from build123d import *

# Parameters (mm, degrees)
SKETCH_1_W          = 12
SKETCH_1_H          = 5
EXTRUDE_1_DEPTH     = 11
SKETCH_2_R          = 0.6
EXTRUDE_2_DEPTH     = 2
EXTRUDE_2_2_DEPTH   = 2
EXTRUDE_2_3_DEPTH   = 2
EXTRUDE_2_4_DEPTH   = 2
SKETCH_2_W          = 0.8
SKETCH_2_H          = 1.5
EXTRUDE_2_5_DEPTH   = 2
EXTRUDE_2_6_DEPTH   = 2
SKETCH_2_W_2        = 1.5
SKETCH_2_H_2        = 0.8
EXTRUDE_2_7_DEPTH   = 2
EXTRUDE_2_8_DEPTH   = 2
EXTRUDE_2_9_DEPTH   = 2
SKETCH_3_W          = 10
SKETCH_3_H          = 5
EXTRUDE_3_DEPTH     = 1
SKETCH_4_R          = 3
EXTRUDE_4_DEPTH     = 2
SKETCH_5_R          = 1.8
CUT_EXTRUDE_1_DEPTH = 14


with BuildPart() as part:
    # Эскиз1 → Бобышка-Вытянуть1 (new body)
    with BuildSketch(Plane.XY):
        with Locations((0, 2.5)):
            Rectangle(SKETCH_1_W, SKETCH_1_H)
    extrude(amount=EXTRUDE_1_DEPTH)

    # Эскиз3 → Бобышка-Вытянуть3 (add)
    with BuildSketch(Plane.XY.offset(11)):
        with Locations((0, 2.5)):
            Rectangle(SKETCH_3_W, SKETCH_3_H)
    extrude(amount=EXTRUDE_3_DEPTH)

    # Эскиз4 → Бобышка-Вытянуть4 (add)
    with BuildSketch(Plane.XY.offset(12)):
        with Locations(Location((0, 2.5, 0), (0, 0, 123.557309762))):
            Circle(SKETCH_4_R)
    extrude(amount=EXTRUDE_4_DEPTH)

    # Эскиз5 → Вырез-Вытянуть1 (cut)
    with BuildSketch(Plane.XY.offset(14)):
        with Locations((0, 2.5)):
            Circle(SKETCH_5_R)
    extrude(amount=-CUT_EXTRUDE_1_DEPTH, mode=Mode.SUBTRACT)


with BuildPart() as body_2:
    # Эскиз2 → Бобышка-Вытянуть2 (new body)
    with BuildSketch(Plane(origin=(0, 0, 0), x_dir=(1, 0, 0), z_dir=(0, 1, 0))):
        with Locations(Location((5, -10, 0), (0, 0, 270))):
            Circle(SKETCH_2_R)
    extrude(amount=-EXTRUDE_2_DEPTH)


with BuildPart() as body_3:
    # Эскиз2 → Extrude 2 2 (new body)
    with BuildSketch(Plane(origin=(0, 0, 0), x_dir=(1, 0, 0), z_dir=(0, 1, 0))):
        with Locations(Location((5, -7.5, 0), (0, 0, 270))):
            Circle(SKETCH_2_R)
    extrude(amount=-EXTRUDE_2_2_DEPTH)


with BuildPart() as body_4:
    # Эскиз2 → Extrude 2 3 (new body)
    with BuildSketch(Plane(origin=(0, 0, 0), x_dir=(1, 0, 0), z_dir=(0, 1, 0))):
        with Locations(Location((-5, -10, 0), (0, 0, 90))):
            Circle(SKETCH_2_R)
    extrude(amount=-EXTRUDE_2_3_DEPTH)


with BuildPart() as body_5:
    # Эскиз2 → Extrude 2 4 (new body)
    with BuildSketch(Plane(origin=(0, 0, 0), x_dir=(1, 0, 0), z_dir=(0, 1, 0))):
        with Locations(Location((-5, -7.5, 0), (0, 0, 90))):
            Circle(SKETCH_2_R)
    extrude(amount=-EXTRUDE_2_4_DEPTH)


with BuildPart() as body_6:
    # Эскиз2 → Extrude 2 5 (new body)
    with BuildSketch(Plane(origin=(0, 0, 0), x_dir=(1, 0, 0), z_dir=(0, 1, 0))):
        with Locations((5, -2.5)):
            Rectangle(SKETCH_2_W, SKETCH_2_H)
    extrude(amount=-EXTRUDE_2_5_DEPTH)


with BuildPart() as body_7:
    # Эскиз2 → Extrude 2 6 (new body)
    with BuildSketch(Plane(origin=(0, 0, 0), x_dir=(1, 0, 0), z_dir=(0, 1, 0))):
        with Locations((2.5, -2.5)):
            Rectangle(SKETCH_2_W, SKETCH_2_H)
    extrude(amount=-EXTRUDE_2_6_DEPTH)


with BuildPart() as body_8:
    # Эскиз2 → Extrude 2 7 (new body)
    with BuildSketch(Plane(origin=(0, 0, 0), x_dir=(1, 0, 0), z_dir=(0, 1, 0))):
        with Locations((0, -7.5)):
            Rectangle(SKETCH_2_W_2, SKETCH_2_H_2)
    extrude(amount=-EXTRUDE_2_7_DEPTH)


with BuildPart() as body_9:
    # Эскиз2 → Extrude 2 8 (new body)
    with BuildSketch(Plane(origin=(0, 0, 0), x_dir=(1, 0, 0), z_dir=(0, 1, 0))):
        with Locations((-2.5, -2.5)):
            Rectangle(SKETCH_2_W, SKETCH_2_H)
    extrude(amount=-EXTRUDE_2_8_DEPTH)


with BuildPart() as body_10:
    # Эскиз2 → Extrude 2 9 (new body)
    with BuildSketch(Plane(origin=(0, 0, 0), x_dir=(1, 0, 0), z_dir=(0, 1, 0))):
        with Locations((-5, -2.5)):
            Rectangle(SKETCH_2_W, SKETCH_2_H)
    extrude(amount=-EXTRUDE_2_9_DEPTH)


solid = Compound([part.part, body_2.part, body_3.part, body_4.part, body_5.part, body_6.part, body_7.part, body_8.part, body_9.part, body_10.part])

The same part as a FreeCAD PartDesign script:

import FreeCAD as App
import Part
import Sketcher

doc = App.newDocument("Part")
params = doc.addObject("Spreadsheet::Sheet", "Params")
for row, (alias, value) in enumerate([
    ("sketch1_width", "12 mm"),
    ("sketch1_height", "5 mm"),
    ("pad1_length", "11 mm"),
    ("sketch2_width", "10 mm"),
    ("sketch2_height", "5 mm"),
    ("pad2_length", "1 mm"),
    ("sketch3_diameter", "6 mm"),
    ("pad3_length", "2 mm"),
    ("sketch4_diameter", "3.6 mm"),
    ("pocket1_length", "14 mm"),
    ("sketch5_diameter", "1.2 mm"),
    ("pad4_length", "2 mm"),
    ("sketch6_diameter", "1.2 mm"),
    ("pad5_length", "2 mm"),
    ("sketch7_diameter", "1.2 mm"),
    ("pad6_length", "2 mm"),
    ("sketch8_diameter", "1.2 mm"),
    ("pad7_length", "2 mm"),
    ("sketch9_width", "0.8 mm"),
    ("sketch9_height", "1.5 mm"),
    ("pad8_length", "2 mm"),
    ("sketch10_width", "0.8 mm"),
    ("sketch10_height", "1.5 mm"),
    ("pad9_length", "2 mm"),
    ("sketch11_width", "1.5 mm"),
    ("sketch11_height", "0.8 mm"),
    ("pad10_length", "2 mm"),
    ("sketch12_width", "0.8 mm"),
    ("sketch12_height", "1.5 mm"),
    ("pad11_length", "2 mm"),
    ("sketch13_width", "0.8 mm"),
    ("sketch13_height", "1.5 mm"),
    ("pad12_length", "2 mm"),
], start=1):
    params.set(f"A{row}", alias)
    params.set(f"B{row}", "=" + value)
    params.setAlias(f"B{row}", alias)

body = doc.addObject("PartDesign::Body", "Body")

# Sketch on XY plane
sketch1 = doc.addObject("Sketcher::SketchObject", "Sketch")
body.addObject(sketch1)
sketch1.AttachmentSupport = (doc.XY_Plane, [""])
sketch1.MapMode = "FlatFace"
sketch1.addGeometry([
    Part.LineSegment(App.Vector(-6, 5, 0), App.Vector(-6, 0, 0)),
    Part.LineSegment(App.Vector(-6, 0, 0), App.Vector(6, 0, 0)),
    Part.LineSegment(App.Vector(6, 0, 0), App.Vector(6, 5, 0)),
    Part.LineSegment(App.Vector(6, 5, 0), App.Vector(-6, 5, 0)),
], False)
sketch1.addConstraint([
    Sketcher.Constraint("Coincident", 0, 2, 1, 1),
    Sketcher.Constraint("Coincident", 1, 2, 2, 1),
    Sketcher.Constraint("Coincident", 2, 2, 3, 1),
    Sketcher.Constraint("Coincident", 3, 2, 0, 1),
    Sketcher.Constraint("Vertical", 0),
    Sketcher.Constraint("Horizontal", 1),
    Sketcher.Constraint("Vertical", 2),
    Sketcher.Constraint("Horizontal", 3),
    Sketcher.Constraint("Symmetric", 0, 2, 1, 2, -1, 1),
    Sketcher.Constraint("DistanceX", 1, 1, 1, 2, 12.0),
    Sketcher.Constraint("DistanceY", 0, 2, 0, 1, 5.0),
])
sketch1.setExpression("Constraints[9]", "Params.sketch1_width")
sketch1.setExpression("Constraints[10]", "Params.sketch1_height")
pad1 = doc.addObject("PartDesign::Pad", "Pad")
body.addObject(pad1)
pad1.Profile = sketch1
pad1.setExpression("Length", "Params.pad1_length")

# Sketch on XY plane
sketch2 = doc.addObject("Sketcher::SketchObject", "Sketch001")
body.addObject(sketch2)
sketch2.AttachmentSupport = (doc.XY_Plane, [""])
sketch2.MapMode = "FlatFace"
sketch2.AttachmentOffset = App.Placement(App.Vector(0, 0, 11), App.Rotation())
sketch2.addGeometry([
    Part.LineSegment(App.Vector(-5, 5, 0), App.Vector(-5, 0, 0)),
    Part.LineSegment(App.Vector(-5, 0, 0), App.Vector(5, 0, 0)),
    Part.LineSegment(App.Vector(5, 0, 0), App.Vector(5, 5, 0)),
    Part.LineSegment(App.Vector(5, 5, 0), App.Vector(-5, 5, 0)),
], False)
sketch2.addConstraint([
    Sketcher.Constraint("Coincident", 0, 2, 1, 1),
    Sketcher.Constraint("Coincident", 1, 2, 2, 1),
    Sketcher.Constraint("Coincident", 2, 2, 3, 1),
    Sketcher.Constraint("Coincident", 3, 2, 0, 1),
    Sketcher.Constraint("Vertical", 0),
    Sketcher.Constraint("Horizontal", 1),
    Sketcher.Constraint("Vertical", 2),
    Sketcher.Constraint("Horizontal", 3),
    Sketcher.Constraint("Symmetric", 0, 2, 1, 2, -1, 1),
    Sketcher.Constraint("DistanceX", 1, 1, 1, 2, 10.0),
    Sketcher.Constraint("DistanceY", 0, 2, 0, 1, 5.0),
])
sketch2.setExpression("Constraints[9]", "Params.sketch2_width")
sketch2.setExpression("Constraints[10]", "Params.sketch2_height")
pad2 = doc.addObject("PartDesign::Pad", "Pad001")
body.addObject(pad2)
pad2.Profile = sketch2
pad2.setExpression("Length", "Params.pad2_length")

# Sketch on XY plane
sketch3 = doc.addObject("Sketcher::SketchObject", "Sketch002")
body.addObject(sketch3)
sketch3.AttachmentSupport = (doc.XY_Plane, [""])
sketch3.MapMode = "FlatFace"
sketch3.AttachmentOffset = App.Placement(App.Vector(0, 0, 12), App.Rotation())
sketch3.addGeometry(Part.Circle(App.Vector(0, 2.5, 0), App.Vector(0, 0, 1), 3), False)
sketch3.addConstraint([
    Sketcher.Constraint("PointOnObject", 0, 3, -2),
    Sketcher.Constraint("Diameter", 0, 6.0),
    Sketcher.Constraint("DistanceY", -1, 1, 0, 3, 2.5),
])
sketch3.setExpression("Constraints[1]", "Params.sketch3_diameter")
pad3 = doc.addObject("PartDesign::Pad", "Pad002")
body.addObject(pad3)
pad3.Profile = sketch3
pad3.setExpression("Length", "Params.pad3_length")

# Sketch on XY plane
sketch4 = doc.addObject("Sketcher::SketchObject", "Sketch003")
body.addObject(sketch4)
sketch4.AttachmentSupport = (doc.XY_Plane, [""])
sketch4.MapMode = "FlatFace"
sketch4.AttachmentOffset = App.Placement(App.Vector(0, 0, 14), App.Rotation())
sketch4.addGeometry(Part.Circle(App.Vector(0, 2.5, 0), App.Vector(0, 0, 1), 1.8), False)
sketch4.addConstraint([
    Sketcher.Constraint("PointOnObject", 0, 3, -2),
    Sketcher.Constraint("Diameter", 0, 3.6),
    Sketcher.Constraint("DistanceY", -1, 1, 0, 3, 2.5),
])
sketch4.setExpression("Constraints[1]", "Params.sketch4_diameter")
pocket1 = doc.addObject("PartDesign::Pocket", "Pocket")
body.addObject(pocket1)
pocket1.Profile = sketch4
pocket1.setExpression("Length", "Params.pocket1_length")
body2 = doc.addObject("PartDesign::Body", "Body001")

# Sketch on XZ plane
sketch5 = doc.addObject("Sketcher::SketchObject", "Sketch004")
body2.addObject(sketch5)
sketch5.AttachmentSupport = (doc.getObject("XZ_Plane001"), [""])
sketch5.MapMode = "FlatFace"
sketch5.addGeometry(Part.Circle(App.Vector(5, 10, 0), App.Vector(0, 0, 1), 0.6), False)
sketch5.addConstraint([
    Sketcher.Constraint("Diameter", 0, 1.2),
    Sketcher.Constraint("DistanceX", -1, 1, 0, 3, 5.0),
    Sketcher.Constraint("DistanceY", -1, 1, 0, 3, 10.0),
])
sketch5.setExpression("Constraints[0]", "Params.sketch5_diameter")
pad4 = doc.addObject("PartDesign::Pad", "Pad003")
body2.addObject(pad4)
pad4.Profile = sketch5
pad4.setExpression("Length", "Params.pad4_length")
body3 = doc.addObject("PartDesign::Body", "Body002")

# Sketch on XZ plane
sketch6 = doc.addObject("Sketcher::SketchObject", "Sketch005")
body3.addObject(sketch6)
sketch6.AttachmentSupport = (doc.getObject("XZ_Plane002"), [""])
sketch6.MapMode = "FlatFace"
sketch6.addGeometry(Part.Circle(App.Vector(5, 7.5, 0), App.Vector(0, 0, 1), 0.6), False)
sketch6.addConstraint([
    Sketcher.Constraint("Diameter", 0, 1.2),
    Sketcher.Constraint("DistanceX", -1, 1, 0, 3, 5.0),
    Sketcher.Constraint("DistanceY", -1, 1, 0, 3, 7.5),
])
sketch6.setExpression("Constraints[0]", "Params.sketch6_diameter")
pad5 = doc.addObject("PartDesign::Pad", "Pad004")
body3.addObject(pad5)
pad5.Profile = sketch6
pad5.setExpression("Length", "Params.pad5_length")
body4 = doc.addObject("PartDesign::Body", "Body003")

# Sketch on XZ plane
sketch7 = doc.addObject("Sketcher::SketchObject", "Sketch006")
body4.addObject(sketch7)
sketch7.AttachmentSupport = (doc.getObject("XZ_Plane003"), [""])
sketch7.MapMode = "FlatFace"
sketch7.addGeometry(Part.Circle(App.Vector(-5, 10, 0), App.Vector(0, 0, 1), 0.6), False)
sketch7.addConstraint([
    Sketcher.Constraint("Diameter", 0, 1.2),
    Sketcher.Constraint("DistanceX", 0, 3, -1, 1, 5.0),
    Sketcher.Constraint("DistanceY", -1, 1, 0, 3, 10.0),
])
sketch7.setExpression("Constraints[0]", "Params.sketch7_diameter")
pad6 = doc.addObject("PartDesign::Pad", "Pad005")
body4.addObject(pad6)
pad6.Profile = sketch7
pad6.setExpression("Length", "Params.pad6_length")
body5 = doc.addObject("PartDesign::Body", "Body004")

# Sketch on XZ plane
sketch8 = doc.addObject("Sketcher::SketchObject", "Sketch007")
body5.addObject(sketch8)
sketch8.AttachmentSupport = (doc.getObject("XZ_Plane004"), [""])
sketch8.MapMode = "FlatFace"
sketch8.addGeometry(Part.Circle(App.Vector(-5, 7.5, 0), App.Vector(0, 0, 1), 0.6), False)
sketch8.addConstraint([
    Sketcher.Constraint("Diameter", 0, 1.2),
    Sketcher.Constraint("DistanceX", 0, 3, -1, 1, 5.0),
    Sketcher.Constraint("DistanceY", -1, 1, 0, 3, 7.5),
])
sketch8.setExpression("Constraints[0]", "Params.sketch8_diameter")
pad7 = doc.addObject("PartDesign::Pad", "Pad006")
body5.addObject(pad7)
pad7.Profile = sketch8
pad7.setExpression("Length", "Params.pad7_length")
body6 = doc.addObject("PartDesign::Body", "Body005")

# Sketch on XZ plane
sketch9 = doc.addObject("Sketcher::SketchObject", "Sketch008")
body6.addObject(sketch9)
sketch9.AttachmentSupport = (doc.getObject("XZ_Plane005"), [""])
sketch9.MapMode = "FlatFace"
sketch9.addGeometry([
    Part.LineSegment(App.Vector(4.6, 1.8, 0), App.Vector(4.6, 3.2, 0)),
    Part.LineSegment(App.Vector(4.6, 3.2, 0), App.Vector(5.4, 3.2, 0)),
    Part.LineSegment(App.Vector(5.4, 3.2, 0), App.Vector(5.4, 1.8, 0)),
    Part.LineSegment(App.Vector(5.4, 1.8, 0), App.Vector(4.6, 1.8, 0)),
], False)
sketch9.addConstraint([
    Sketcher.Constraint("Coincident", 0, 2, 1, 1),
    Sketcher.Constraint("Coincident", 1, 2, 2, 1),
    Sketcher.Constraint("Coincident", 2, 2, 3, 1),
    Sketcher.Constraint("Coincident", 3, 2, 0, 1),
    Sketcher.Constraint("Vertical", 0),
    Sketcher.Constraint("Horizontal", 1),
    Sketcher.Constraint("Vertical", 2),
    Sketcher.Constraint("Horizontal", 3),
    Sketcher.Constraint("DistanceX", 1, 1, 1, 2, 0.8),
    Sketcher.Constraint("DistanceY", 0, 1, 0, 2, 1.5),
    Sketcher.Constraint("DistanceX", -1, 1, 0, 2, 4.6),
    Sketcher.Constraint("DistanceY", -1, 1, 0, 2, 3.25),
])
sketch9.setExpression("Constraints[8]", "Params.sketch9_width")
sketch9.setExpression("Constraints[9]", "Params.sketch9_height")
pad8 = doc.addObject("PartDesign::Pad", "Pad007")
body6.addObject(pad8)
pad8.Profile = sketch9
pad8.setExpression("Length", "Params.pad8_length")
body7 = doc.addObject("PartDesign::Body", "Body006")

# Sketch on XZ plane
sketch10 = doc.addObject("Sketcher::SketchObject", "Sketch009")
body7.addObject(sketch10)
sketch10.AttachmentSupport = (doc.getObject("XZ_Plane006"), [""])
sketch10.MapMode = "FlatFace"
sketch10.addGeometry([
    Part.LineSegment(App.Vector(2.1, 1.8, 0), App.Vector(2.1, 3.2, 0)),
    Part.LineSegment(App.Vector(2.1, 3.2, 0), App.Vector(2.9, 3.2, 0)),
    Part.LineSegment(App.Vector(2.9, 3.2, 0), App.Vector(2.9, 1.8, 0)),
    Part.LineSegment(App.Vector(2.9, 1.8, 0), App.Vector(2.1, 1.8, 0)),
], False)
sketch10.addConstraint([
    Sketcher.Constraint("Coincident", 0, 2, 1, 1),
    Sketcher.Constraint("Coincident", 1, 2, 2, 1),
    Sketcher.Constraint("Coincident", 2, 2, 3, 1),
    Sketcher.Constraint("Coincident", 3, 2, 0, 1),
    Sketcher.Constraint("Vertical", 0),
    Sketcher.Constraint("Horizontal", 1),
    Sketcher.Constraint("Vertical", 2),
    Sketcher.Constraint("Horizontal", 3),
    Sketcher.Constraint("DistanceX", 1, 1, 1, 2, 0.8),
    Sketcher.Constraint("DistanceY", 0, 1, 0, 2, 1.5),
    Sketcher.Constraint("DistanceX", -1, 1, 0, 2, 2.1),
    Sketcher.Constraint("DistanceY", -1, 1, 0, 2, 3.25),
])
sketch10.setExpression("Constraints[8]", "Params.sketch10_width")
sketch10.setExpression("Constraints[9]", "Params.sketch10_height")
pad9 = doc.addObject("PartDesign::Pad", "Pad008")
body7.addObject(pad9)
pad9.Profile = sketch10
pad9.setExpression("Length", "Params.pad9_length")
body8 = doc.addObject("PartDesign::Body", "Body007")

# Sketch on XZ plane
sketch11 = doc.addObject("Sketcher::SketchObject", "Sketch010")
body8.addObject(sketch11)
sketch11.AttachmentSupport = (doc.getObject("XZ_Plane007"), [""])
sketch11.MapMode = "FlatFace"
sketch11.addGeometry([
    Part.LineSegment(App.Vector(-0.8, 7.1, 0), App.Vector(-0.8, 7.9, 0)),
    Part.LineSegment(App.Vector(-0.8, 7.9, 0), App.Vector(0.8, 7.9, 0)),
    Part.LineSegment(App.Vector(0.8, 7.9, 0), App.Vector(0.8, 7.1, 0)),
    Part.LineSegment(App.Vector(0.8, 7.1, 0), App.Vector(-0.8, 7.1, 0)),
], False)
sketch11.addConstraint([
    Sketcher.Constraint("Coincident", 0, 2, 1, 1),
    Sketcher.Constraint("Coincident", 1, 2, 2, 1),
    Sketcher.Constraint("Coincident", 2, 2, 3, 1),
    Sketcher.Constraint("Coincident", 3, 2, 0, 1),
    Sketcher.Constraint("Vertical", 0),
    Sketcher.Constraint("Horizontal", 1),
    Sketcher.Constraint("Vertical", 2),
    Sketcher.Constraint("Horizontal", 3),
    Sketcher.Constraint("DistanceX", 1, 1, 1, 2, 1.5),
    Sketcher.Constraint("DistanceY", 0, 1, 0, 2, 0.8),
    Sketcher.Constraint("DistanceY", -1, 1, 0, 2, 7.9),
    Sketcher.Constraint("DistanceX", 0, 2, -1, 1, 0.75),
])
sketch11.setExpression("Constraints[8]", "Params.sketch11_width")
sketch11.setExpression("Constraints[9]", "Params.sketch11_height")
pad10 = doc.addObject("PartDesign::Pad", "Pad009")
body8.addObject(pad10)
pad10.Profile = sketch11
pad10.setExpression("Length", "Params.pad10_length")
body9 = doc.addObject("PartDesign::Body", "Body008")

# Sketch on XZ plane
sketch12 = doc.addObject("Sketcher::SketchObject", "Sketch011")
body9.addObject(sketch12)
sketch12.AttachmentSupport = (doc.getObject("XZ_Plane008"), [""])
sketch12.MapMode = "FlatFace"
sketch12.addGeometry([
    Part.LineSegment(App.Vector(-2.9, 1.8, 0), App.Vector(-2.9, 3.2, 0)),
    Part.LineSegment(App.Vector(-2.9, 3.2, 0), App.Vector(-2.1, 3.2, 0)),
    Part.LineSegment(App.Vector(-2.1, 3.2, 0), App.Vector(-2.1, 1.8, 0)),
    Part.LineSegment(App.Vector(-2.1, 1.8, 0), App.Vector(-2.9, 1.8, 0)),
], False)
sketch12.addConstraint([
    Sketcher.Constraint("Coincident", 0, 2, 1, 1),
    Sketcher.Constraint("Coincident", 1, 2, 2, 1),
    Sketcher.Constraint("Coincident", 2, 2, 3, 1),
    Sketcher.Constraint("Coincident", 3, 2, 0, 1),
    Sketcher.Constraint("Vertical", 0),
    Sketcher.Constraint("Horizontal", 1),
    Sketcher.Constraint("Vertical", 2),
    Sketcher.Constraint("Horizontal", 3),
    Sketcher.Constraint("DistanceX", 1, 1, 1, 2, 0.8),
    Sketcher.Constraint("DistanceY", 0, 1, 0, 2, 1.5),
    Sketcher.Constraint("DistanceX", 0, 2, -1, 1, 2.9),
    Sketcher.Constraint("DistanceY", -1, 1, 0, 2, 3.25),
])
sketch12.setExpression("Constraints[8]", "Params.sketch12_width")
sketch12.setExpression("Constraints[9]", "Params.sketch12_height")
pad11 = doc.addObject("PartDesign::Pad", "Pad010")
body9.addObject(pad11)
pad11.Profile = sketch12
pad11.setExpression("Length", "Params.pad11_length")
body10 = doc.addObject("PartDesign::Body", "Body009")

# Sketch on XZ plane
sketch13 = doc.addObject("Sketcher::SketchObject", "Sketch012")
body10.addObject(sketch13)
sketch13.AttachmentSupport = (doc.getObject("XZ_Plane009"), [""])
sketch13.MapMode = "FlatFace"
sketch13.addGeometry([
    Part.LineSegment(App.Vector(-5.4, 1.8, 0), App.Vector(-5.4, 3.2, 0)),
    Part.LineSegment(App.Vector(-5.4, 3.2, 0), App.Vector(-4.6, 3.2, 0)),
    Part.LineSegment(App.Vector(-4.6, 3.2, 0), App.Vector(-4.6, 1.8, 0)),
    Part.LineSegment(App.Vector(-4.6, 1.8, 0), App.Vector(-5.4, 1.8, 0)),
], False)
sketch13.addConstraint([
    Sketcher.Constraint("Coincident", 0, 2, 1, 1),
    Sketcher.Constraint("Coincident", 1, 2, 2, 1),
    Sketcher.Constraint("Coincident", 2, 2, 3, 1),
    Sketcher.Constraint("Coincident", 3, 2, 0, 1),
    Sketcher.Constraint("Vertical", 0),
    Sketcher.Constraint("Horizontal", 1),
    Sketcher.Constraint("Vertical", 2),
    Sketcher.Constraint("Horizontal", 3),
    Sketcher.Constraint("DistanceX", 1, 1, 1, 2, 0.8),
    Sketcher.Constraint("DistanceY", 0, 1, 0, 2, 1.5),
    Sketcher.Constraint("DistanceX", 0, 2, -1, 1, 5.4),
    Sketcher.Constraint("DistanceY", -1, 1, 0, 2, 3.25),
])
sketch13.setExpression("Constraints[8]", "Params.sketch13_width")
sketch13.setExpression("Constraints[9]", "Params.sketch13_height")
pad12 = doc.addObject("PartDesign::Pad", "Pad011")
body10.addObject(pad12)
pad12.Profile = sketch13
pad12.setExpression("Length", "Params.pad12_length")

doc.recompute()
